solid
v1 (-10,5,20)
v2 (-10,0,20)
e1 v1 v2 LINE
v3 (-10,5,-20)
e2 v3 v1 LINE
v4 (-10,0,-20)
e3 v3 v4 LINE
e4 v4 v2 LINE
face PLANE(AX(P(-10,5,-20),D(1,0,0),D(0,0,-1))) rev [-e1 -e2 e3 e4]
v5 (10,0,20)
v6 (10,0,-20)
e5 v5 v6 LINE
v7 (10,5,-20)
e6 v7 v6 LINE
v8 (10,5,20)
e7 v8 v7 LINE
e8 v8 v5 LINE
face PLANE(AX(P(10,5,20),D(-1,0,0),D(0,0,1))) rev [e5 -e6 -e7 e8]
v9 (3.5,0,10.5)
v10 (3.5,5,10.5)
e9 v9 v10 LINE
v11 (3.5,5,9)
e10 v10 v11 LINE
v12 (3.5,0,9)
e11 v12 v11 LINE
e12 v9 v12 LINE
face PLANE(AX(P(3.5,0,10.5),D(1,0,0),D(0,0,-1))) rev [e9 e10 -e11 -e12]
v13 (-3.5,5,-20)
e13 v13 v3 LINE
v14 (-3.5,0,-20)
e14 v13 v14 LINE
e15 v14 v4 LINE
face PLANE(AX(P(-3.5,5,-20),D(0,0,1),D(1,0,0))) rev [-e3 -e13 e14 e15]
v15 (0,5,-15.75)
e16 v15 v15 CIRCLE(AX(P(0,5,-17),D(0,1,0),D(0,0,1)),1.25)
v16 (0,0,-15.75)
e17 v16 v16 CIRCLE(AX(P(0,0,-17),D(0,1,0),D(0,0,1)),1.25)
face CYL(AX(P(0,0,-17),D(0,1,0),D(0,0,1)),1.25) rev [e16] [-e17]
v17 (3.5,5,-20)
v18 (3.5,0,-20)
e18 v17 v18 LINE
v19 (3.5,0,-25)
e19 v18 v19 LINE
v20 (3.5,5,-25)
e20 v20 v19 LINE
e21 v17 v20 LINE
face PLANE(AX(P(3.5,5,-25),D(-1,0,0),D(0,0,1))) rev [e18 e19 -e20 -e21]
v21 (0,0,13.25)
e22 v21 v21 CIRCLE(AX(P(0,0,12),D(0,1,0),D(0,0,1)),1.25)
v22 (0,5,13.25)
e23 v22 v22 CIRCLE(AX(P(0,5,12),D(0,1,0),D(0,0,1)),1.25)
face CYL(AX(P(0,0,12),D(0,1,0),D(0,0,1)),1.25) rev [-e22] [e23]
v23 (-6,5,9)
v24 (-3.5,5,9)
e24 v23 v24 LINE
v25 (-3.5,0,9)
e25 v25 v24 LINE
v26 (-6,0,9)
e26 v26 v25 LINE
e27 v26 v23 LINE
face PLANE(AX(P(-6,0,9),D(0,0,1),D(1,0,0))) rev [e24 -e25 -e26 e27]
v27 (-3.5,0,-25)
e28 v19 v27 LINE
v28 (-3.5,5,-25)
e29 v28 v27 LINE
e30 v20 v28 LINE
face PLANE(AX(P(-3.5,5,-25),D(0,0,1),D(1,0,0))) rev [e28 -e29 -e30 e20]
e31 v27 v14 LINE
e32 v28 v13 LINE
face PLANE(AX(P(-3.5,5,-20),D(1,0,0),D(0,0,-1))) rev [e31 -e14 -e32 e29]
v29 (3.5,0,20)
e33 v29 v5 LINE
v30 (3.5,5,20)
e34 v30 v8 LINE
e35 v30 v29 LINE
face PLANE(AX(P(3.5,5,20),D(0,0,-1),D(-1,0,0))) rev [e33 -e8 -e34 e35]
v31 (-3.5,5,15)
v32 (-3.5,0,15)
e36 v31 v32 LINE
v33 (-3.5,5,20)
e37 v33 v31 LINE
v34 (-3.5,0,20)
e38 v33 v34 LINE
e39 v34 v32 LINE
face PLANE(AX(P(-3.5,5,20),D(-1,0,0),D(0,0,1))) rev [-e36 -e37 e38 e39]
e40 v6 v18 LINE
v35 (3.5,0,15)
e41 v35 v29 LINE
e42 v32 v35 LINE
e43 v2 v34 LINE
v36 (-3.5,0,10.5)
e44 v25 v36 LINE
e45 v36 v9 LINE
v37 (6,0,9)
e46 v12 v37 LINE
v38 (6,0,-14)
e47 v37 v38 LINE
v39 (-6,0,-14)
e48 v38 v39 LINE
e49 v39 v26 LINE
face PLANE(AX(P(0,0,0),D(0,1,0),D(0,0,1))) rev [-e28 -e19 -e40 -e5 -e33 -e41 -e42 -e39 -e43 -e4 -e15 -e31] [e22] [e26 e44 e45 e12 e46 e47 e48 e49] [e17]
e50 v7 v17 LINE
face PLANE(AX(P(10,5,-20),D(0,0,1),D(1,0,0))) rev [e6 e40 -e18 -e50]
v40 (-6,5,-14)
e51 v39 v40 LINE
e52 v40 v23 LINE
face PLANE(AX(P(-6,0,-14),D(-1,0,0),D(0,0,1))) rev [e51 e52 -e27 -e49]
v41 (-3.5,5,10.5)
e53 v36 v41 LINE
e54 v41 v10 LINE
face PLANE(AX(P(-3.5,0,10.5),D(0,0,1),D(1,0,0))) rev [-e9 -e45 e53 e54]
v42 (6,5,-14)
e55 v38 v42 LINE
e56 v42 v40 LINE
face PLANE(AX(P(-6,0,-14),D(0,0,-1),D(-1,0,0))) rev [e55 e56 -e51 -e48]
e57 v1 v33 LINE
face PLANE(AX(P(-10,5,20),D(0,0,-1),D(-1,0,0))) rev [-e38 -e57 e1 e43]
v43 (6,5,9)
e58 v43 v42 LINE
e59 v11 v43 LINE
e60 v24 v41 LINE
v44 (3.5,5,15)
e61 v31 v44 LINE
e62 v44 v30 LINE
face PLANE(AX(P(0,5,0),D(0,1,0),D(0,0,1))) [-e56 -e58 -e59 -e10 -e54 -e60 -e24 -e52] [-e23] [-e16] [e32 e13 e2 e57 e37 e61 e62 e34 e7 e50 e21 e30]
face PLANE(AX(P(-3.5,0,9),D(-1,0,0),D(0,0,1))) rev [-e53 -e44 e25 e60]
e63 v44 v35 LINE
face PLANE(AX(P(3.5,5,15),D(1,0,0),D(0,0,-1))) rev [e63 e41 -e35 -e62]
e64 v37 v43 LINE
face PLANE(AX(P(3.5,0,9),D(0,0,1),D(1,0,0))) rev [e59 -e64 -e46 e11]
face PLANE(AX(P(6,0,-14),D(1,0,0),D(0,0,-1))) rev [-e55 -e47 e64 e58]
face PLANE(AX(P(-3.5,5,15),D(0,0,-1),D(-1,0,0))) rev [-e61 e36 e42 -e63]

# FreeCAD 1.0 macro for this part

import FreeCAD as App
import Part
import Sketcher

V = App.Vector

doc = App.newDocument("Part")
params = doc.addObject("Spreadsheet::Sheet", "Params")
for row, (alias, value) in enumerate([
    ("sketch1_width", "7 mm"),
    ("sketch1_height", "40 mm"),
    ("sketch1_height2", "5 mm"),
    ("sketch1_width2", "6.5 mm"),
    ("pad1_length", "5 mm"),
    ("sketch2_diameter", "2.5 mm"),
    ("sketch2_width", "12 mm"),
    ("sketch2_width2", "7 mm"),
    ("sketch2_height", "23 mm"),
    ("sketch2_height2", "1.5 mm"),
    ("pocket1_length", "5 mm"),
], start=1):
    params.set(f"A{row}", alias)
    params.set(f"B{row}", "=" + value)
    params.setAlias(f"B{row}", alias)

body = doc.addObject("PartDesign::Body", "Body")

# Sketch on XZ plane
sketch1 = body.newObject("Sketcher::SketchObject", "Sketch")
sketch1.AttachmentSupport = (doc.getObject("XZ_Plane"), [""])
sketch1.MapMode = "FlatFace"
sketch1.addGeometry(Part.LineSegment(V(-10, -20, 0), V(-10, 20, 0)), False)
sketch1.addGeometry(Part.LineSegment(V(-10, 20, 0), V(-4, 20, 0)), False)
sketch1.addGeometry(Part.LineSegment(V(-4, 20, 0), V(-4, 15, 0)), False)
sketch1.addGeometry(Part.LineSegment(V(-4, 15, 0), V(4, 15, 0)), False)
sketch1.addGeometry(Part.LineSegment(V(4, 15, 0), V(4, 20, 0)), False)
sketch1.addGeometry(Part.LineSegment(V(4, 20, 0), V(10, 20, 0)), False)
sketch1.addGeometry(Part.LineSegment(V(10, 20, 0), V(10, -20, 0)), False)
sketch1.addGeometry(Part.LineSegment(V(10, -20, 0), V(4, -20, 0)), False)
sketch1.addGeometry(Part.LineSegment(V(4, -20, 0), V(4, -25, 0)), False)
sketch1.addGeometry(Part.LineSegment(V(4, -25, 0), V(-4, -25, 0)), False)
sketch1.addGeometry(Part.LineSegment(V(-4, -25, 0), V(-4, -20, 0)), False)
sketch1.addGeometry(Part.LineSegment(V(-4, -20, 0), V(-10, -20, 0)), False)
sketch1.addConstraint(Sketcher.Constraint("Coincident", 0, 2, 1, 1))
sketch1.addConstraint(Sketcher.Constraint("Coincident", 1, 2, 2, 1))
sketch1.addConstraint(Sketcher.Constraint("Coincident", 2, 2, 3, 1))
sketch1.addConstraint(Sketcher.Constraint("Coincident", 3, 2, 4, 1))
sketch1.addConstraint(Sketcher.Constraint("Coincident", 4, 2, 5, 1))
sketch1.addConstraint(Sketcher.Constraint("Coincident", 5, 2, 6, 1))
sketch1.addConstraint(Sketcher.Constraint("Coincident", 6, 2, 7, 1))
sketch1.addConstraint(Sketcher.Constraint("Coincident", 7, 2, 8, 1))
sketch1.addConstraint(Sketcher.Constraint("Coincident", 8, 2, 9, 1))
sketch1.addConstraint(Sketcher.Constraint("Coincident", 9, 2, 10, 1))
sketch1.addConstraint(Sketcher.Constraint("Coincident", 10, 2, 11, 1))
sketch1.addConstraint(Sketcher.Constraint("Coincident", 11, 2, 0, 1))
sketch1.addConstraint(Sketcher.Constraint("Vertical", 0))
sketch1.addConstraint(Sketcher.Constraint("Horizontal", 1))
sketch1.addConstraint(Sketcher.Constraint("Vertical", 2))
sketch1.addConstraint(Sketcher.Constraint("Horizontal", 3))
sketch1.addConstraint(Sketcher.Constraint("Vertical", 4))
sketch1.addConstraint(Sketcher.Constraint("Horizontal", 5))
sketch1.addConstraint(Sketcher.Constraint("Vertical", 6))
sketch1.addConstraint(Sketcher.Constraint("Horizontal", 7))
sketch1.addConstraint(Sketcher.Constraint("Vertical", 8))
sketch1.addConstraint(Sketcher.Constraint("Horizontal", 9))
sketch1.addConstraint(Sketcher.Constraint("Vertical", 10))
sketch1.addConstraint(Sketcher.Constraint("Horizontal", 11))
sketch1.addConstraint(Sketcher.Constraint("Symmetric", 0, 2, 6, 2, -1, 1))
sketch1.addConstraint(Sketcher.Constraint("Symmetric", 4, 2, 10, 2, -1, 1))
sketch1.addConstraint(Sketcher.Constraint("Symmetric", 1, 2, 4, 2, -2))
sketch1.addConstraint(Sketcher.Constraint("Vertical", 4, 2, 7, 2))
sketch1.addConstraint(Sketcher.Constraint("Equal", 4, 8))
sketch1.addConstraint(Sketcher.Constraint("DistanceX", 3, 1, 3, 2, 7.0))
sketch1.addConstraint(Sketcher.Constraint("DistanceY", 0, 1, 0, 2, 40.0))
sketch1.addConstraint(Sketcher.Constraint("DistanceY", 2, 2, 2, 1, 5.0))
sketch1.addConstraint(Sketcher.Constraint("DistanceX", 1, 1, 1, 2, 6.5))
sketch1.setExpression("Constraints[29]", "Params.sketch1_width")
sketch1.setExpression("Constraints[30]", "Params.sketch1_height")
sketch1.setExpression("Constraints[31]", "Params.sketch1_height2")
sketch1.setExpression("Constraints[32]", "Params.sketch1_width2")
pad1 = body.newObject("PartDesign::Pad", "Pad")
pad1.Profile = sketch1
pad1.setExpression("Length", "Params.pad1_length")
pad1.Reversed = True

# Sketch on XZ plane
sketch2 = body.newObject("Sketcher::SketchObject", "Sketch001")
sketch2.AttachmentSupport = (doc.getObject("XZ_Plane"), [""])
sketch2.MapMode = "FlatFace"
sketch2.AttachmentOffset = App.Placement(V(0, 0, -5), App.Rotation())
sketch2.addGeometry(Part.Circle(V(0, -17, 0), V(0, 0, 1), 1.2), False)
sketch2.addGeometry(Part.Circle(V(0, 12, 0), V(0, 0, 1), 1.2), False)
sketch2.addGeometry(Part.LineSegment(V(6, -14, 0), V(-6, -14, 0)), False)
sketch2.addGeometry(Part.LineSegment(V(-6, -14, 0), V(-6, 9, 0)), False)
sketch2.addGeometry(Part.LineSegment(V(-6, 9, 0), V(-3.5, 9, 0)), False)
sketch2.addGeometry(Part.LineSegment(V(-3.5, 9, 0), V(-3.5, 10.5, 0)), False)
sketch2.addGeometry(Part.LineSegment(V(-3.5, 10.5, 0), V(3.5, 10.5, 0)), False)
sketch2.addGeometry(Part.LineSegment(V(3.5, 10.5, 0), V(3.5, 9, 0)), False)
sketch2.addGeometry(Part.LineSegment(V(3.5, 9, 0), V(6, 9, 0)), False)
sketch2.addGeometry(Part.LineSegment(V(6, 9, 0), V(6, -14, 0)), False)
sketch2.addConstraint(Sketcher.Constraint("Coincident", 2, 2, 3, 1))
sketch2.addConstraint(Sketcher.Constraint("Coincident", 3, 2, 4, 1))
sketch2.addConstraint(Sketcher.Constraint("Coincident", 4, 2, 5, 1))
sketch2.addConstraint(Sketcher.Constraint("Coincident", 5, 2, 6, 1))
sketch2.addConstraint(Sketcher.Constraint("Coincident", 6, 2, 7, 1))
sketch2.addConstraint(Sketcher.Constraint("Coincident", 7, 2, 8, 1))
sketch2.addConstraint(Sketcher.Constraint("Coincident", 8, 2, 9, 1))
sketch2.addConstraint(Sketcher.Constraint("Coincident", 9, 2, 2, 1))
sketch2.addConstraint(Sketcher.Constraint("Horizontal", 2))
sketch2.addConstraint(Sketcher.Constraint("Vertical", 3))
sketch2.addConstraint(Sketcher.Constraint("Horizontal", 4))
sketch2.addConstraint(Sketcher.Constraint("Vertical", 5))
sketch2.addConstraint(Sketcher.Constraint("Horizontal", 6))
sketch2.addConstraint(Sketcher.Constraint("Vertical", 7))
sketch2.addConstraint(Sketcher.Constraint("Horizontal", 8))
sketch2.addConstraint(Sketcher.Constraint("Vertical", 9))
sketch2.addConstraint(Sketcher.Constraint("Equal", 0, 1))
sketch2.addConstraint(Sketcher.Constraint("Symmetric", 4, 2, 7, 2, -2))
sketch2.addConstraint(Sketcher.Constraint("PointOnObject", 0, 3, -2))
sketch2.addConstraint(Sketcher.Constraint("PointOnObject", 1, 3, -2))
sketch2.addConstraint(Sketcher.Constraint("Equal", 4, 8))
sketch2.addConstraint(Sketcher.Constraint("Diameter", 0, 2.5))
sketch2.addConstraint(Sketcher.Constraint("DistanceX", 2, 2, 2, 1, 12.0))
sketch2.addConstraint(Sketcher.Constraint("DistanceX", 6, 1, 6, 2, 7.0))
sketch2.addConstraint(Sketcher.Constraint("DistanceY", 3, 1, 3, 2, 23.0))
sketch2.addConstraint(Sketcher.Constraint("DistanceY", 5, 1, 5, 2, 1.5))
sketch2.addConstraint(Sketcher.Constraint("DistanceY", 0, 3, -1, 1, 17.0))
sketch2.addConstraint(Sketcher.Constraint("DistanceY", -1, 1, 1, 3, 12.0))
sketch2.addConstraint(Sketcher.Constraint("DistanceY", 2, 2, -1, 1, 14.0))
sketch2.setExpression("Constraints[21]", "Params.sketch2_diameter")
sketch2.setExpression("Constraints[22]", "Params.sketch2_width")
sketch2.setExpression("Constraints[23]", "Params.sketch2_width2")
sketch2.setExpression("Constraints[24]", "Params.sketch2_height")
sketch2.setExpression("Constraints[25]", "Params.sketch2_height2")
pocket1 = body.newObject("PartDesign::Pocket", "Pocket")
pocket1.Profile = sketch2
pocket1.setExpression("Length", "Params.pocket1_length")
pocket1.Reversed = True

doc.recompute()
